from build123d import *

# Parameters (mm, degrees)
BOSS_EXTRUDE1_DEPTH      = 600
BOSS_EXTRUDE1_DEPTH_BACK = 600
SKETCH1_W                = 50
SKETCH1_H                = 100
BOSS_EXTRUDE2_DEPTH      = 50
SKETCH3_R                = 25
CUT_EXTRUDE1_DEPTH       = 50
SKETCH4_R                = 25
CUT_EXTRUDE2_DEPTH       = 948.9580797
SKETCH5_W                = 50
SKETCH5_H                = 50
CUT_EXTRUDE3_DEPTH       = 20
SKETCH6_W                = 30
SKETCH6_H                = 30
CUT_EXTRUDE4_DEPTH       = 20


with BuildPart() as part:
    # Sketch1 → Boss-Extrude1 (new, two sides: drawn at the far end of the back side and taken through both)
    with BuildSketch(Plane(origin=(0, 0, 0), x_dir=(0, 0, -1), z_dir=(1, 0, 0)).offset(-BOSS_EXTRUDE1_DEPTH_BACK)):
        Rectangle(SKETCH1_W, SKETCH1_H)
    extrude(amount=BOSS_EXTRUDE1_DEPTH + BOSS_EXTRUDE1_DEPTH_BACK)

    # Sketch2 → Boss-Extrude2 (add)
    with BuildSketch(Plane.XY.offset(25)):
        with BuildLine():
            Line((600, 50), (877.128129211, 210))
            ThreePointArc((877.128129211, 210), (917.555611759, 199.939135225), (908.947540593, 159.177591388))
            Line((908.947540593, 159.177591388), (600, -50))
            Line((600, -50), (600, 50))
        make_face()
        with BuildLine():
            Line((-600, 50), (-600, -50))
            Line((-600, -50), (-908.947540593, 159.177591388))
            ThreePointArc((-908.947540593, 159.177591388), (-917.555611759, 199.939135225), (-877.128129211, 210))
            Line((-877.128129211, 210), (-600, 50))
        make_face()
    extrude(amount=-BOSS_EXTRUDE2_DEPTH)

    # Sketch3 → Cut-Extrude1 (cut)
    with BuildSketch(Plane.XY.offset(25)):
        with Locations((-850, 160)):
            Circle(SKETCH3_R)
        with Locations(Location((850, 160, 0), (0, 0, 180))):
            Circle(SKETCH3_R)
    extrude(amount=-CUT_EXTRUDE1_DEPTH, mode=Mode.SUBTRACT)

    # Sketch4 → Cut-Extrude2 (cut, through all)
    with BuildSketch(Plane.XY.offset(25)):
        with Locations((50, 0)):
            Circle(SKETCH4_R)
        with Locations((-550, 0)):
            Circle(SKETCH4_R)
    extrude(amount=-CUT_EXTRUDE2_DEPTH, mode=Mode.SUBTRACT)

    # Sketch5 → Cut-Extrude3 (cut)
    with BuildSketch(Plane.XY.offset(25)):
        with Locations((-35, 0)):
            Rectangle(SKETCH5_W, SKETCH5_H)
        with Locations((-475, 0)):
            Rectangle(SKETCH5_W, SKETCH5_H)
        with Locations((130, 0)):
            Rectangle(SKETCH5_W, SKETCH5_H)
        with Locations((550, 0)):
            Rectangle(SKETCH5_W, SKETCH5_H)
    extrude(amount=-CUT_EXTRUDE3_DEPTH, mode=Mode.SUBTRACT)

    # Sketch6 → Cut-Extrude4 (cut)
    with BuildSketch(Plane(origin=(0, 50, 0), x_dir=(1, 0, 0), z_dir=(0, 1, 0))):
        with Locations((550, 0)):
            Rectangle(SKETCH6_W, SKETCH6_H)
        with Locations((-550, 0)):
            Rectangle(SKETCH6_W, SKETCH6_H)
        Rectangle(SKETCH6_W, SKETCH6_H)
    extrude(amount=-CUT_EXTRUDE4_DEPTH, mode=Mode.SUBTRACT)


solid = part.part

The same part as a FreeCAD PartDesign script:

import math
import FreeCAD as App
import Part
import Sketcher
from FreeCAD import Vector
Q = App.Units.Quantity


def add_polygon(sketch, points):
    """Adds a closed chain of lines whose ends are joined by coincident constraints."""
    first, n = sketch.GeometryCount, len(points)
    for a, b in zip(points, points[1:] + points[:1]):
        sketch.addGeometry(Part.LineSegment(App.Vector(*a, 0), App.Vector(*b, 0)), False)
    for i in range(n):
        sketch.addConstraint(Sketcher.Constraint("Coincident", first + i, 2, first + (i + 1) % n, 1))

doc = App.newDocument("Part")
params = doc.addObject("Spreadsheet::Sheet", "Params")
for row, (alias, value) in enumerate([
    ("sketch1_width", "100 mm"),
    ("sketch1_height", "50 mm"),
    ("pad1_length", "600 mm"),
    ("pad1_length2", "600 mm"),
    ("sketch2_radius", "30 mm"),
    ("sketch2_height", "100 mm"),
    ("sketch2_length", "320 mm"),
    ("pad2_length", "50 mm"),
    ("sketch3_diameter", "50 mm"),
    ("pocket1_length", "50 mm"),
    ("sketch4_diameter", "50 mm"),
    ("sketch5_width", "50 mm"),
    ("pocket3_length", "20 mm"),
    ("sketch6_width", "30 mm"),
    ("pocket4_length", "20 mm"),
], start=1):
    params.set(f"A{row}", alias)
    params.set(f"B{row}", "=" + value)
    params.setAlias(f"B{row}", alias)

body = doc.addObject("PartDesign::Body", "Body")

# Sketch on YZ plane
sketch1 = doc.addObject("Sketcher::SketchObject", "Sketch")
body.addObject(sketch1)
sketch1.AttachmentSupport = (doc.YZ_Plane, [""])
sketch1.MapMode = "FlatFace"
add_polygon(sketch1, [(50, 25), (-50, 25), (-50, -25), (50, -25)])  # lines 0-3
sketch1.addConstraint(Sketcher.Constraint("Horizontal", 0))
sketch1.addConstraint(Sketcher.Constraint("Vertical", 1))
sketch1.addConstraint(Sketcher.Constraint("Horizontal", 2))
sketch1.addConstraint(Sketcher.Constraint("Vertical", 3))
sketch1.addConstraint(Sketcher.Constraint("Symmetric", 0, 2, 2, 2, -1, 1))
sketch1.addConstraint(Sketcher.Constraint("DistanceX", 0, 2, 0, 1, 100.0))
sketch1.addConstraint(Sketcher.Constraint("DistanceY", 1, 2, 1, 1, 50.0))
sketch1.setExpression("Constraints[9]", "Params.sketch1_width")
sketch1.setExpression("Constraints[10]", "Params.sketch1_height")
pad1 = doc.addObject("PartDesign::Pad", "Pad")
body.addObject(pad1)
pad1.Profile = sketch1
pad1.Type = "TwoLengths"
pad1.setExpression("Length", "Params.pad1_length")
pad1.setExpression("Length2", "Params.pad1_length2")

# Sketch on XY plane
sketch2 = doc.addObject("Sketcher::SketchObject", "Sketch001")
body.addObject(sketch2)
sketch2.AttachmentSupport = (doc.XY_Plane, [""])
sketch2.MapMode = "FlatFace"
sketch2.AttachmentOffset = App.Placement(Vector(0, 0, 25), App.Rotation())
sketch2.addGeometry(Part.LineSegment(Vector(877, 210, 0), Vector(600, 50, 0)), False)
sketch2.addGeometry(Part.LineSegment(Vector(600, 50, 0), Vector(600, -50, 0)), False)
sketch2.addGeometry(Part.LineSegment(Vector(600, -50, 0), Vector(909, 159, 0)), False)
sketch2.addGeometry(Part.ArcOfCircle(Part.Circle(Vector(892, 184, 0), Vector(0, 0, 1), 30), math.radians(-56), math.radians(120)), False)
sketch2.addGeometry(Part.LineSegment(Vector(-600, -50, 0), Vector(-600, 50, 0)), False)
sketch2.addGeometry(Part.LineSegment(Vector(-600, 50, 0), Vector(-877, 210, 0)), False)
sketch2.addGeometry(Part.ArcOfCircle(Part.Circle(Vector(-892, 184, 0), Vector(0, 0, 1), 30), math.radians(60), math.radians(236)), False)
sketch2.addGeometry(Part.LineSegment(Vector(-909, 159, 0), Vector(-600, -50, 0)), False)
sketch2.addConstraint(Sketcher.Constraint("Coincident", 0, 2, 1, 1))
sketch2.addConstraint(Sketcher.Constraint("Coincident", 1, 2, 2, 1))
sketch2.addConstraint(Sketcher.Constraint("Tangent", 2, 2, 3, 1))
sketch2.addConstraint(Sketcher.Constraint("Tangent", 3, 2, 0, 1))
sketch2.addConstraint(Sketcher.Constraint("Coincident", 4, 2, 5, 1))
sketch2.addConstraint(Sketcher.Constraint("Tangent", 5, 2, 6, 1))
sketch2.addConstraint(Sketcher.Constraint("Tangent", 6, 2, 7, 1))
sketch2.addConstraint(Sketcher.Constraint("Coincident", 7, 2, 4, 1))
sketch2.addConstraint(Sketcher.Constraint("Vertical", 1))
sketch2.addConstraint(Sketcher.Constraint("Vertical", 4))
sketch2.addConstraint(Sketcher.Constraint("Equal", 3, 6))
sketch2.addConstraint(Sketcher.Constraint("Symmetric", 1, 2, 4, 2, -1, 1))
sketch2.addConstraint(Sketcher.Constraint("Symmetric", 3, 3, 6, 3, -2))
sketch2.addConstraint(Sketcher.Constraint("Horizontal", 0, 2, 4, 2))
sketch2.addConstraint(Sketcher.Constraint("Horizontal", 1, 2, 7, 2))
sketch2.addConstraint(Sketcher.Constraint("Radius", 3, 30.0))
sketch2.addConstraint(Sketcher.Constraint("DistanceY", 1, 2, 1, 1, 100.0))
sketch2.addConstraint(Sketcher.Constraint("Angle", 0, Q("-150 deg")))
sketch2.addConstraint(Sketcher.Constraint("Distance", 0, 320.0))
sketch2.addConstraint(Sketcher.Constraint("DistanceX", -1, 1, 0, 2, 600.0))
sketch2.setExpression("Constraints[15]", "Params.sketch2_radius")
sketch2.setExpression("Constraints[16]", "Params.sketch2_height")
sketch2.setExpression("Constraints[18]", "Params.sketch2_length")
pad2 = doc.addObject("PartDesign::Pad", "Pad001")
body.addObject(pad2)
pad2.Profile = sketch2
pad2.setExpression("Length", "Params.pad2_length")
pad2.Reversed = True

# Sketch on XY plane
sketch3 = doc.addObject("Sketcher::SketchObject", "Sketch002")
body.addObject(sketch3)
sketch3.AttachmentSupport = (doc.XY_Plane, [""])
sketch3.MapMode = "FlatFace"
sketch3.AttachmentOffset = App.Placement(Vector(0, 0, 25), App.Rotation())
sketch3.addGeometry(Part.Circle(Vector(-850, 160, 0), Vector(0, 0, 1), 25), False)
sketch3.addGeometry(Part.Circle(Vector(850, 160, 0), Vector(0, 0, 1), 25), False)
sketch3.addConstraint(Sketcher.Constraint("Equal", 0, 1))
sketch3.addConstraint(Sketcher.Constraint("Symmetric", 0, 3, 1, 3, -2))
sketch3.addConstraint(Sketcher.Constraint("Diameter", 0, 50.0))
sketch3.addConstraint(Sketcher.Constraint("DistanceX", 0, 3, -1, 1, 850.0))
sketch3.addConstraint(Sketcher.Constraint("DistanceY", -1, 1, 0, 3, 160.0))
sketch3.setExpression("Constraints[2]", "Params.sketch3_diameter")
pocket1 = doc.addObject("PartDesign::Pocket", "Pocket")
body.addObject(pocket1)
pocket1.Profile = sketch3
pocket1.setExpression("Length", "Params.pocket1_length")

# Sketch on XY plane
sketch4 = doc.addObject("Sketcher::SketchObject", "Sketch003")
body.addObject(sketch4)
sketch4.AttachmentSupport = (doc.XY_Plane, [""])
sketch4.MapMode = "FlatFace"
sketch4.AttachmentOffset = App.Placement(Vector(0, 0, 25), App.Rotation())
sketch4.addGeometry(Part.Circle(Vector(50, 0, 0), Vector(0, 0, 1), 25), False)
sketch4.addGeometry(Part.Circle(Vector(-550, 0, 0), Vector(0, 0, 1), 25), False)
sketch4.addConstraint(Sketcher.Constraint("Equal", 0, 1))
sketch4.addConstraint(Sketcher.Constraint("PointOnObject", 0, 3, -1))
sketch4.addConstraint(Sketcher.Constraint("PointOnObject", 1, 3, -1))
sketch4.addConstraint(Sketcher.Constraint("Diameter", 0, 50.0))
sketch4.addConstraint(Sketcher.Constraint("DistanceX", -1, 1, 0, 3, 50.0))
sketch4.addConstraint(Sketcher.Constraint("DistanceX", 1, 3, -1, 1, 550.0))
sketch4.setExpression("Constraints[3]", "Params.sketch4_diameter")
pocket2 = doc.addObject("PartDesign::Pocket", "Pocket001")
body.addObject(pocket2)
pocket2.Profile = sketch4
pocket2.Type = "ThroughAll"

# Sketch on XY plane
sketch5 = doc.addObject("Sketcher::SketchObject", "Sketch004")
body.addObject(sketch5)
sketch5.AttachmentSupport = (doc.XY_Plane, [""])
sketch5.MapMode = "FlatFace"
sketch5.AttachmentOffset = App.Placement(Vector(0, 0, 25), App.Rotation())
add_polygon(sketch5, [(-60, 25), (-60, -25), (-10, -25), (-10, 25)])  # lines 0-3
add_polygon(sketch5, [(-500, 25), (-500, -25), (-450, -25), (-450, 25)])  # lines 4-7
add_polygon(sketch5, [(105, 25), (105, -25), (155, -25), (155, 25)])  # lines 8-11
add_polygon(sketch5, [(525, 25), (525, -25), (575, -25), (575, 25)])  # lines 12-15
sketch5.addConstraint(Sketcher.Constraint("Vertical", 0))
sketch5.addConstraint(Sketcher.Constraint("Horizontal", 1))
sketch5.addConstraint(Sketcher.Constraint("Vertical", 2))
sketch5.addConstraint(Sketcher.Constraint("Horizontal", 3))
sketch5.addConstraint(Sketcher.Constraint("Vertical", 4))
sketch5.addConstraint(Sketcher.Constraint("Horizontal", 5))
sketch5.addConstraint(Sketcher.Constraint("Vertical", 6))
sketch5.addConstraint(Sketcher.Constraint("Horizontal", 7))
sketch5.addConstraint(Sketcher.Constraint("Vertical", 8))
sketch5.addConstraint(Sketcher.Constraint("Horizontal", 9))
sketch5.addConstraint(Sketcher.Constraint("Vertical", 10))
sketch5.addConstraint(Sketcher.Constraint("Horizontal", 11))
sketch5.addConstraint(Sketcher.Constraint("Vertical", 12))
sketch5.addConstraint(Sketcher.Constraint("Horizontal", 13))
sketch5.addConstraint(Sketcher.Constraint("Vertical", 14))
sketch5.addConstraint(Sketcher.Constraint("Horizontal", 15))
sketch5.addConstraint(Sketcher.Constraint("Horizontal", 1, 2, 4, 2))
sketch5.addConstraint(Sketcher.Constraint("Horizontal", 3, 2, 6, 2))
sketch5.addConstraint(Sketcher.Constraint("Horizontal", 5, 2, 8, 2))
sketch5.addConstraint(Sketcher.Constraint("Horizontal", 7, 2, 10, 2))
sketch5.addConstraint(Sketcher.Constraint("Horizontal", 9, 2, 12, 2))
sketch5.addConstraint(Sketcher.Constraint("Horizontal", 11, 2, 14, 2))
sketch5.addConstraint(Sketcher.Constraint("Equal", 3, 5))
sketch5.addConstraint(Sketcher.Constraint("Equal", 7, 9))
sketch5.addConstraint(Sketcher.Constraint("Equal", 11, 13))
sketch5.addConstraint(Sketcher.Constraint("Equal", 15, 0))
sketch5.addConstraint(Sketcher.Constraint("DistanceX", 1, 1, 1, 2, 50.0))
sketch5.addConstraint(Sketcher.Constraint("DistanceX", 0, 2, -1, 1, 60.0))
sketch5.addConstraint(Sketcher.Constraint("DistanceY", 0, 2, -1, 1, 25.0))
sketch5.addConstraint(Sketcher.Constraint("DistanceX", 4, 2, -1, 1, 500.0))
sketch5.addConstraint(Sketcher.Constraint("DistanceX", -1, 1, 8, 2, 105.0))
sketch5.addConstraint(Sketcher.Constraint("DistanceX", -1, 1, 12, 2, 525.0))
sketch5.setExpression("Constraints[42]", "Params.sketch5_width")
pocket3 = doc.addObject("PartDesign::Pocket", "Pocket002")
body.addObject(pocket3)
pocket3.Profile = sketch5
pocket3.setExpression("Length", "Params.pocket3_length")

# Sketch on XZ plane
sketch6 = doc.addObject("Sketcher::SketchObject", "Sketch005")
body.addObject(sketch6)
sketch6.AttachmentSupport = (doc.XZ_Plane, [""])
sketch6.MapMode = "FlatFace"
sketch6.AttachmentOffset = App.Placement(Vector(0, 0, -50), App.Rotation())
add_polygon(sketch6, [(535, -15), (535, 15), (565, 15), (565, -15)])  # lines 0-3
add_polygon(sketch6, [(-565, -15), (-565, 15), (-535, 15), (-535, -15)])  # lines 4-7
add_polygon(sketch6, [(-15, -15), (-15, 15), (15, 15), (15, -15)])  # lines 8-11
sketch6.addConstraint(Sketcher.Constraint("Vertical", 0))
sketch6.addConstraint(Sketcher.Constraint("Horizontal", 1))
sketch6.addConstraint(Sketcher.Constraint("Vertical", 2))
sketch6.addConstraint(Sketcher.Constraint("Horizontal", 3))
sketch6.addConstraint(Sketcher.Constraint("Vertical", 4))
sketch6.addConstraint(Sketcher.Constraint("Horizontal", 5))
sketch6.addConstraint(Sketcher.Constraint("Vertical", 6))
sketch6.addConstraint(Sketcher.Constraint("Horizontal", 7))
sketch6.addConstraint(Sketcher.Constraint("Vertical", 8))
sketch6.addConstraint(Sketcher.Constraint("Horizontal", 9))
sketch6.addConstraint(Sketcher.Constraint("Vertical", 10))
sketch6.addConstraint(Sketcher.Constraint("Horizontal", 11))
sketch6.addConstraint(Sketcher.Constraint("Symmetric", 2, 2, 4, 2, -1, 1))
sketch6.addConstraint(Sketcher.Constraint("Symmetric", 0, 2, 6, 2, -1, 1))
sketch6.addConstraint(Sketcher.Constraint("Symmetric", 8, 2, 10, 2, -1, 1))
sketch6.addConstraint(Sketcher.Constraint("Horizontal", 1, 2, 4, 2))
sketch6.addConstraint(Sketcher.Constraint("Horizontal", 5, 2, 8, 2))
sketch6.addConstraint(Sketcher.Constraint("Equal", 7, 9))
sketch6.addConstraint(Sketcher.Constraint("Equal", 11, 0))
sketch6.addConstraint(Sketcher.Constraint("DistanceX", 1, 1, 1, 2, 30.0))
sketch6.addConstraint(Sketcher.Constraint("DistanceX", -1, 1, 0, 2, 535.0))
sketch6.setExpression("Constraints[31]", "Params.sketch6_width")
pocket4 = doc.addObject("PartDesign::Pocket", "Pocket003")
body.addObject(pocket4)
pocket4.Profile = sketch6
pocket4.setExpression("Length", "Params.pocket4_length")
pocket4.Reversed = True

doc.recompute()
